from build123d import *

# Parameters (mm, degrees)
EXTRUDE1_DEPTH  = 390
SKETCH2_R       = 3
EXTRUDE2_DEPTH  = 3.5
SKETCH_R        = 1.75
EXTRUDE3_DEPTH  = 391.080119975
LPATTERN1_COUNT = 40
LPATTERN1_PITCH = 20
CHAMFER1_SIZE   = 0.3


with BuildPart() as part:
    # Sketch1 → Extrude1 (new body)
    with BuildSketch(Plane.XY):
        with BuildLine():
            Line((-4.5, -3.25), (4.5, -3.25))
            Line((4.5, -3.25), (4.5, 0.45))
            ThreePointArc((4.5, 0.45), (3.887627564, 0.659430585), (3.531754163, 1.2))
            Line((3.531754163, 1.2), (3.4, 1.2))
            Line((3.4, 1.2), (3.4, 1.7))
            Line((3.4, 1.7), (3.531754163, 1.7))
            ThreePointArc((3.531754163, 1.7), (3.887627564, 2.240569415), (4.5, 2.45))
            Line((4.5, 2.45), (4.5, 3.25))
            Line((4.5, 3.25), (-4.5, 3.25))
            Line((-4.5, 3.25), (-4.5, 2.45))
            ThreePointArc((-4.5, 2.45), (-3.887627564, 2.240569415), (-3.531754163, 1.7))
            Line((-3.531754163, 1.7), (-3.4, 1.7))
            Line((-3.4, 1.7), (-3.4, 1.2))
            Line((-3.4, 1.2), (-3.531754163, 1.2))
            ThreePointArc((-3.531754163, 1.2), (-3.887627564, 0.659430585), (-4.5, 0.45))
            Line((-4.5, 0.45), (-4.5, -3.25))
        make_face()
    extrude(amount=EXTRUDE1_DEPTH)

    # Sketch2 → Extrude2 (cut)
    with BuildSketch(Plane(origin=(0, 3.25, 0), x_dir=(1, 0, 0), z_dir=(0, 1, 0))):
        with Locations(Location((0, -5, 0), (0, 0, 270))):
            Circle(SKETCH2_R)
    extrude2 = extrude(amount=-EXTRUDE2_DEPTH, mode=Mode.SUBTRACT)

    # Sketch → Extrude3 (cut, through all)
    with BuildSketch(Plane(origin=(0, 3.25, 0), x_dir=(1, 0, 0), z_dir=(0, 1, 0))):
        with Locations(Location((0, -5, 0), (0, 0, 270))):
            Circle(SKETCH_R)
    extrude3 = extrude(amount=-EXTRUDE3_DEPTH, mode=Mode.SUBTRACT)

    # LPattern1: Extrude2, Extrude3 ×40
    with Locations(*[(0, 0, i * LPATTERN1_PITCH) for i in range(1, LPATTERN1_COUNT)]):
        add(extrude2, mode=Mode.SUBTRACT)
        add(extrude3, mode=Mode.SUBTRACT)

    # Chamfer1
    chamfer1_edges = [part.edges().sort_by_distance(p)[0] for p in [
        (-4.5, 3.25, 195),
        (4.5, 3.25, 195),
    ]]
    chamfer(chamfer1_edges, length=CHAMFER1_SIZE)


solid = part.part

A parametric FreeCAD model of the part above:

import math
import FreeCAD as App
import Part
import Sketcher
Q = App.Units.Quantity


def edges_at(feature, points):
    """Names of the edges that pass closest to the given points."""
    edges = feature.Shape.Edges
    near = lambda p: min(range(len(edges)), key=lambda i: edges[i].distToShape(Part.Vertex(*p))[0])
    return sorted({f"Edge{near(p) + 1}" for p in points})

doc = App.newDocument("Part")
body = doc.addObject("PartDesign::Body", "Body")

# Sketch on XY plane
sketch1 = body.newObject("Sketcher::SketchObject", "Sketch")
sketch1.AttachmentSupport = (doc.getObject("XY_Plane"), [""])
sketch1.MapMode = "FlatFace"
sketch1.addGeometry([
    Part.LineSegment(App.Vector(-4.5, -3.25, 0), App.Vector(4.5, -3.25, 0)),  # 0
    Part.LineSegment(App.Vector(4.5, -3.25, 0), App.Vector(4.5, 0.45, 0)),  # 1
    Part.ArcOfCircle(Part.Circle(App.Vector(4.5, 1.45, 0), App.Vector(0, 0, 1), 1), math.radians(-166), math.radians(-90)),  # 2
    Part.LineSegment(App.Vector(3.53, 1.2, 0), App.Vector(3.4, 1.2, 0)),  # 3
    Part.LineSegment(App.Vector(3.4, 1.2, 0), App.Vector(3.4, 1.7, 0)),  # 4
    Part.LineSegment(App.Vector(3.4, 1.7, 0), App.Vector(3.53, 1.7, 0)),  # 5
    Part.ArcOfCircle(Part.Circle(App.Vector(4.5, 1.45, 0), App.Vector(0, 0, 1), 1), math.radians(90), math.radians(166)),  # 6
    Part.LineSegment(App.Vector(4.5, 2.45, 0), App.Vector(4.5, 3.25, 0)),  # 7
    Part.LineSegment(App.Vector(4.5, 3.25, 0), App.Vector(-4.5, 3.25, 0)),  # 8
    Part.LineSegment(App.Vector(-4.5, 3.25, 0), App.Vector(-4.5, 2.45, 0)),  # 9
    Part.ArcOfCircle(Part.Circle(App.Vector(-4.5, 1.45, 0), App.Vector(0, 0, 1), 1), math.radians(14), math.radians(90)),  # 10
    Part.LineSegment(App.Vector(-3.53, 1.7, 0), App.Vector(-3.4, 1.7, 0)),  # 11
    Part.LineSegment(App.Vector(-3.4, 1.7, 0), App.Vector(-3.4, 1.2, 0)),  # 12
    Part.LineSegment(App.Vector(-3.4, 1.2, 0), App.Vector(-3.53, 1.2, 0)),  # 13
    Part.ArcOfCircle(Part.Circle(App.Vector(-4.5, 1.45, 0), App.Vector(0, 0, 1), 1), math.radians(-90), math.radians(-14)),  # 14
    Part.LineSegment(App.Vector(-4.5, 0.45, 0), App.Vector(-4.5, -3.25, 0)),  # 15
], False)
sketch1.addConstraint([
    Sketcher.Constraint("Coincident", 0, 2, 1, 1),
    Sketcher.Constraint("Coincident", 1, 2, 2, 2),
    Sketcher.Constraint("Coincident", 2, 1, 3, 1),
    Sketcher.Constraint("Coincident", 3, 2, 4, 1),
    Sketcher.Constraint("Coincident", 4, 2, 5, 1),
    Sketcher.Constraint("Coincident", 5, 2, 6, 2),
    Sketcher.Constraint("Coincident", 6, 1, 7, 1),
    Sketcher.Constraint("Coincident", 7, 2, 8, 1),
    Sketcher.Constraint("Coincident", 8, 2, 9, 1),
    Sketcher.Constraint("Coincident", 9, 2, 10, 2),
    Sketcher.Constraint("Coincident", 10, 1, 11, 1),
    Sketcher.Constraint("Coincident", 11, 2, 12, 1),
    Sketcher.Constraint("Coincident", 12, 2, 13, 1),
    Sketcher.Constraint("Coincident", 13, 2, 14, 2),
    Sketcher.Constraint("Coincident", 14, 1, 15, 1),
    Sketcher.Constraint("Coincident", 15, 2, 0, 1),
    Sketcher.Constraint("Horizontal", 0),
    Sketcher.Constraint("Vertical", 1),
    Sketcher.Constraint("Horizontal", 3),
    Sketcher.Constraint("Vertical", 4),
    Sketcher.Constraint("Horizontal", 5),
    Sketcher.Constraint("Vertical", 7),
    Sketcher.Constraint("Horizontal", 8),
    Sketcher.Constraint("Vertical", 9),
    Sketcher.Constraint("Horizontal", 11),
    Sketcher.Constraint("Vertical", 12),
    Sketcher.Constraint("Horizontal", 13),
    Sketcher.Constraint("Vertical", 15),
    Sketcher.Constraint("Coincident", 6, 3, 2, 3),
    Sketcher.Constraint("Coincident", 14, 3, 10, 3),
    Sketcher.Constraint("Equal", 2, 6),
    Sketcher.Constraint("Equal", 6, 10),
    Sketcher.Constraint("Equal", 10, 14),
    Sketcher.Constraint("Symmetric", 0, 2, 8, 2, -1, 1),
    Sketcher.Constraint("Symmetric", 2, 3, 10, 3, -2),
    Sketcher.Constraint("Symmetric", 4, 2, 11, 2, -2),
    Sketcher.Constraint("Horizontal", 3, 2, 12, 2),
    Sketcher.Constraint("Vertical", 6, 3, 0, 2),
    Sketcher.Constraint("Vertical", 2, 1, 5, 2),
    Sketcher.Constraint("Vertical", 1, 2, 6, 1),
    Sketcher.Constraint("Vertical", 9, 2, 14, 1),
    Sketcher.Constraint("Radius", 2, Q("1 mm")),
    Sketcher.Constraint("DistanceX", 0, 1, 0, 2, Q("9 mm")),
    Sketcher.Constraint("DistanceY", 1, 1, 1, 2, Q("3.7 mm")),
    Sketcher.Constraint("DistanceY", 4, 1, 4, 2, Q("0.5 mm")),
    Sketcher.Constraint("DistanceY", 7, 1, 7, 2, Q("0.8 mm")),
    Sketcher.Constraint("DistanceX", -1, 1, 3, 2, Q("3.4 mm")),
])
pad1 = body.newObject("PartDesign::Pad", "Pad")
pad1.Profile = sketch1
pad1.Length = 390

# Sketch on XZ plane
sketch2 = body.newObject("Sketcher::SketchObject", "Sketch001")
sketch2.AttachmentSupport = (doc.getObject("XZ_Plane"), [""])
sketch2.MapMode = "FlatFace"
sketch2.AttachmentOffset = App.Placement(App.Vector(0, 0, -3.25), App.Rotation())
sketch2.addGeometry(Part.Circle(App.Vector(0, 5, 0), App.Vector(0, 0, 1), 3), False)
sketch2.addConstraint([
    Sketcher.Constraint("PointOnObject", 0, 3, -2),
    Sketcher.Constraint("Diameter", 0, Q("6 mm")),
    Sketcher.Constraint("DistanceY", -1, 1, 0, 3, Q("5 mm")),
])
pocket1 = body.newObject("PartDesign::Pocket", "Pocket")
pocket1.Profile = sketch2
pocket1.Length = 3.5
pocket1.Reversed = True

# Sketch on XZ plane
sketch3 = body.newObject("Sketcher::SketchObject", "Sketch002")
sketch3.AttachmentSupport = (doc.getObject("XZ_Plane"), [""])
sketch3.MapMode = "FlatFace"
sketch3.AttachmentOffset = App.Placement(App.Vector(0, 0, -3.25), App.Rotation())
sketch3.addGeometry(Part.Circle(App.Vector(0, 5, 0), App.Vector(0, 0, 1), 1.8), False)
sketch3.addConstraint([
    Sketcher.Constraint("PointOnObject", 0, 3, -2),
    Sketcher.Constraint("Diameter", 0, Q("3.5 mm")),
    Sketcher.Constraint("DistanceY", -1, 1, 0, 3, Q("5 mm")),
])
pocket2 = body.newObject("PartDesign::Pocket", "Pocket001")
pocket2.Profile = sketch3
pocket2.Type = "ThroughAll"
pocket2.Reversed = True
doc.recompute()

linearpattern = body.newObject("PartDesign::LinearPattern", "LinearPattern")
linearpattern.Originals = [pocket1, pocket2]
linearpattern.Direction = (doc.getObject("Z_Axis"), [""])
linearpattern.Mode = "offset"
linearpattern.Offset = 20
linearpattern.Occurrences = 40
body.Tip = linearpattern
doc.recompute()

chamfer = body.newObject("PartDesign::Chamfer", "Chamfer")
chamfer.Base = (linearpattern, edges_at(linearpattern, [(-4.5, 3.25, 195), (4.5, 3.25, 195)]))
chamfer.Size = 0.3

doc.recompute()
